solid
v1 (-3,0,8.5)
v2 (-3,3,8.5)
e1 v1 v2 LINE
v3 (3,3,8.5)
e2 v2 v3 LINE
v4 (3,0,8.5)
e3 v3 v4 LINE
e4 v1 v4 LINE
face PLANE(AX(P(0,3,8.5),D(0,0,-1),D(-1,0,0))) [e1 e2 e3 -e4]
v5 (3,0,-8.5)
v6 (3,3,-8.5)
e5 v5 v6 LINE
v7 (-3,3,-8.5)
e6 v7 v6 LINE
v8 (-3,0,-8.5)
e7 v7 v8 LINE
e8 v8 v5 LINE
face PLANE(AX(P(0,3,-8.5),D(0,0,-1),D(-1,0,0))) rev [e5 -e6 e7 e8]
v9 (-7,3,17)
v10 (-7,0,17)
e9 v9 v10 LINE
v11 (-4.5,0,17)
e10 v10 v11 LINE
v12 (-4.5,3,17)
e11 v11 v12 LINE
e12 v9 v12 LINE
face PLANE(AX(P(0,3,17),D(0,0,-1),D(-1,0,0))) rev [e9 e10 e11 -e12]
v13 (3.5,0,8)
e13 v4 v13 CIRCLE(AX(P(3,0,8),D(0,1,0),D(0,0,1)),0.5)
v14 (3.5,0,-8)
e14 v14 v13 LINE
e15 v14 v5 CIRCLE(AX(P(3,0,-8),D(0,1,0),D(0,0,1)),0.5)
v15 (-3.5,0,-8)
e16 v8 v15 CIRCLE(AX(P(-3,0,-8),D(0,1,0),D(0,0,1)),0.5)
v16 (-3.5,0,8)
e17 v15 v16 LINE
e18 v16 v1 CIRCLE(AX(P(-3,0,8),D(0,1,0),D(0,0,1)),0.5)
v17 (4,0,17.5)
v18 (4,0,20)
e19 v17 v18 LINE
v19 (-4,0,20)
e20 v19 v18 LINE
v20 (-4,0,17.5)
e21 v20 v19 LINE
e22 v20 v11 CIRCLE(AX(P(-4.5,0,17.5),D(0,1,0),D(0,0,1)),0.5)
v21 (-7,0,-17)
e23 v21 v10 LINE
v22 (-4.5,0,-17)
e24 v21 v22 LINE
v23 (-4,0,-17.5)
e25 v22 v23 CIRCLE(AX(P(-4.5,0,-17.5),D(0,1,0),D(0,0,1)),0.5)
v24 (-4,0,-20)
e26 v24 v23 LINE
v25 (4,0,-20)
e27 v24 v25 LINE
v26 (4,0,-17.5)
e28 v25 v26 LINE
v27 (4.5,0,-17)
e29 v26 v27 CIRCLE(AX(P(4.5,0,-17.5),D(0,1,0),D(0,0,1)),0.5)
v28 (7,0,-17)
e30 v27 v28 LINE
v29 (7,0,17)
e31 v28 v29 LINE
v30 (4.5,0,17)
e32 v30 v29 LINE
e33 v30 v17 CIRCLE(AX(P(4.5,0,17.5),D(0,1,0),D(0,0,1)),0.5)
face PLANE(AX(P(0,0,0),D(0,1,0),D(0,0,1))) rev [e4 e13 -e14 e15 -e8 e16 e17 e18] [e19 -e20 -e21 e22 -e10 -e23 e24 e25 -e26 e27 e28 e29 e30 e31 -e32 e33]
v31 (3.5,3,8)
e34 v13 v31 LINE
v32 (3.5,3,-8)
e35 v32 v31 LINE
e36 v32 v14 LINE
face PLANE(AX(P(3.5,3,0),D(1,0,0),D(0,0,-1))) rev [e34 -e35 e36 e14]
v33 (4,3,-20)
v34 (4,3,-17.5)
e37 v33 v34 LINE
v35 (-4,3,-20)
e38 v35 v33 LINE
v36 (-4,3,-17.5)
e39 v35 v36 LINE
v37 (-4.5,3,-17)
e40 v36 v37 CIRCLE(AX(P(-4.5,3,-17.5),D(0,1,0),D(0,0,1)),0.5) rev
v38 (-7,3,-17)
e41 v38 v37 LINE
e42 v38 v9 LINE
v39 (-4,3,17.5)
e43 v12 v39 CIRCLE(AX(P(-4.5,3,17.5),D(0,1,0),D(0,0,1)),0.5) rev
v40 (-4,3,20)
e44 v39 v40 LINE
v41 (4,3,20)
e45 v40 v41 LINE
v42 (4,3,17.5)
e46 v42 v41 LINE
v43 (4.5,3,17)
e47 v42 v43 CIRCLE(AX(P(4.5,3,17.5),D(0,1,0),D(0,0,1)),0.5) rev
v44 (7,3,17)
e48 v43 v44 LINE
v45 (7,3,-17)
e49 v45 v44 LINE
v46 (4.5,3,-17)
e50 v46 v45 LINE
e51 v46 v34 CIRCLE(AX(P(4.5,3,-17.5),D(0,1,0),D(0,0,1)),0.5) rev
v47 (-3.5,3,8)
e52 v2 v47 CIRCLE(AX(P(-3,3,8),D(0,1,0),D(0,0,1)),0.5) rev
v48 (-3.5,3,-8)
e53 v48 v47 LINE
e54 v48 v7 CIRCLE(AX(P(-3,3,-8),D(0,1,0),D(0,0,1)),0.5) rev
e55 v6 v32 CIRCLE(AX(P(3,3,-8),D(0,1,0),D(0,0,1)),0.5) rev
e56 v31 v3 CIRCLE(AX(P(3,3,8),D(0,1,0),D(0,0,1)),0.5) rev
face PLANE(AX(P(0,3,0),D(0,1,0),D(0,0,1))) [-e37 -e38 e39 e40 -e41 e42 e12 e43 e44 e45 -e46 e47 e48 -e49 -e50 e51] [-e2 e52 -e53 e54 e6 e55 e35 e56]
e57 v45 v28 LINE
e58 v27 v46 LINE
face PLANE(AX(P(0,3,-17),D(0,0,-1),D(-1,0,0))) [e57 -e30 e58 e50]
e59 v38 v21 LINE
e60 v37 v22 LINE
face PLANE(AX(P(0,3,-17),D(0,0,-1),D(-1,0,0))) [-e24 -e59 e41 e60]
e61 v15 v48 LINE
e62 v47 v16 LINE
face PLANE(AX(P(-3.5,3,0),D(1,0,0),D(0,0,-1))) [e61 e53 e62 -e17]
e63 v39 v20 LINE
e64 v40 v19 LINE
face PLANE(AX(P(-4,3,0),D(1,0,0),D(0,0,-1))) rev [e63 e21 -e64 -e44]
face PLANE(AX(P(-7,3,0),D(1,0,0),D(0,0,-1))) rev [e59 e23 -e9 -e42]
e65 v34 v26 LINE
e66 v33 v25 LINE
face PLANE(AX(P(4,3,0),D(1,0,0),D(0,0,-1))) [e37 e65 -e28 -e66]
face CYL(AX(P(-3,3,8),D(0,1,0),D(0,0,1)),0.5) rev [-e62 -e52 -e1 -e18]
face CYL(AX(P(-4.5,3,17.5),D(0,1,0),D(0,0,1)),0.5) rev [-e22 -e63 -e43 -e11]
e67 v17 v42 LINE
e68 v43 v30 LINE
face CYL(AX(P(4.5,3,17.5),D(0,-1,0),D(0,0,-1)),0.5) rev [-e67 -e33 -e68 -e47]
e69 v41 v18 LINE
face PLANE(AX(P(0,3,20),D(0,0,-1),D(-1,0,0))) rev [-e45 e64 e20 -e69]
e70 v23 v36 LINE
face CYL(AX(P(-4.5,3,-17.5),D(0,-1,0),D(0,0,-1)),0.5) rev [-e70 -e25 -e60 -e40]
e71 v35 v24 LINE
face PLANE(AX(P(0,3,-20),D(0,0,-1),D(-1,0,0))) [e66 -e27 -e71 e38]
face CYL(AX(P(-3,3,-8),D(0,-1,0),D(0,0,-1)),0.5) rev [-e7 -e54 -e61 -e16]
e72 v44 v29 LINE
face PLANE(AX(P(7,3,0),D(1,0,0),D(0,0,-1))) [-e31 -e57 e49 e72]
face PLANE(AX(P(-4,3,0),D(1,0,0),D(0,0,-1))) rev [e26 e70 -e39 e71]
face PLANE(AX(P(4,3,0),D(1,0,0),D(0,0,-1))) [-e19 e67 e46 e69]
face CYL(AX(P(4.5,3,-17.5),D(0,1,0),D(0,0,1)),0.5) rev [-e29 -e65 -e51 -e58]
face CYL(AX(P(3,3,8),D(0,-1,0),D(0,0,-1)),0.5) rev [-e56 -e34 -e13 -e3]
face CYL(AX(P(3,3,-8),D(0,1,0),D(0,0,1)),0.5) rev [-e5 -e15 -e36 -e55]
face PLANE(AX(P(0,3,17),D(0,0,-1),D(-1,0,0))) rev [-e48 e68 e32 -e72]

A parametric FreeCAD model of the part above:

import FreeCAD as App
import Part
import Sketcher

V = App.Vector


def edges_at(feature, points):
    """Names of the edges that pass closest to the given points."""
    edges = feature.Shape.Edges
    near = lambda p: min(range(len(edges)), key=lambda i: edges[i].distToShape(Part.Vertex(*p))[0])
    return sorted({f"Edge{near(p) + 1}" for p in points})

doc = App.newDocument("Part")
body = doc.addObject("PartDesign::Body", "Body")

# Sketch on XZ plane
sketch1 = body.newObject("Sketcher::SketchObject", "Sketch")
sketch1.AttachmentSupport = (doc.getObject("XZ_Plane"), [""])
sketch1.MapMode = "FlatFace"
sketch1.addGeometry(Part.LineSegment(V(-4, -17, 0), V(-7, -17, 0)), False)
sketch1.addGeometry(Part.LineSegment(V(-7, -17, 0), V(-7, 17, 0)), False)
sketch1.addGeometry(Part.LineSegment(V(-7, 17, 0), V(-4, 17, 0)), False)
sketch1.addGeometry(Part.LineSegment(V(-4, 17, 0), V(-4, 20, 0)), False)
sketch1.addGeometry(Part.LineSegment(V(-4, 20, 0), V(4, 20, 0)), False)
sketch1.addGeometry(Part.LineSegment(V(4, 20, 0), V(4, 17, 0)), False)
sketch1.addGeometry(Part.LineSegment(V(4, 17, 0), V(7, 17, 0)), False)
sketch1.addGeometry(Part.LineSegment(V(7, 17, 0), V(7, -17, 0)), False)
sketch1.addGeometry(Part.LineSegment(V(7, -17, 0), V(4, -17, 0)), False)
sketch1.addGeometry(Part.LineSegment(V(4, -17, 0), V(4, -20, 0)), False)
sketch1.addGeometry(Part.LineSegment(V(4, -20, 0), V(-4, -20, 0)), False)
sketch1.addGeometry(Part.LineSegment(V(-4, -20, 0), V(-4, -17, 0)), False)
sketch1.addGeometry(Part.LineSegment(V(3.5, 8.5, 0), V(-3.5, 8.5, 0)), False)
sketch1.addGeometry(Part.LineSegment(V(-3.5, 8.5, 0), V(-3.5, -8.5, 0)), False)
sketch1.addGeometry(Part.LineSegment(V(-3.5, -8.5, 0), V(3.5, -8.5, 0)), False)
sketch1.addGeometry(Part.LineSegment(V(3.5, -8.5, 0), V(3.5, 8.5, 0)), False)
sketch1.addConstraint(Sketcher.Constraint("Coincident", 0, 2, 1, 1))
sketch1.addConstraint(Sketcher.Constraint("Coincident", 1, 2, 2, 1))
sketch1.addConstraint(Sketcher.Constraint("Coincident", 2, 2, 3, 1))
sketch1.addConstraint(Sketcher.Constraint("Coincident", 3, 2, 4, 1))
sketch1.addConstraint(Sketcher.Constraint("Coincident", 4, 2, 5, 1))
sketch1.addConstraint(Sketcher.Constraint("Coincident", 5, 2, 6, 1))
sketch1.addConstraint(Sketcher.Constraint("Coincident", 6, 2, 7, 1))
sketch1.addConstraint(Sketcher.Constraint("Coincident", 7, 2, 8, 1))
sketch1.addConstraint(Sketcher.Constraint("Coincident", 8, 2, 9, 1))
sketch1.addConstraint(Sketcher.Constraint("Coincident", 9, 2, 10, 1))
sketch1.addConstraint(Sketcher.Constraint("Coincident", 10, 2, 11, 1))
sketch1.addConstraint(Sketcher.Constraint("Coincident", 11, 2, 0, 1))
sketch1.addConstraint(Sketcher.Constraint("Coincident", 12, 2, 13, 1))
sketch1.addConstraint(Sketcher.Constraint("Coincident", 13, 2, 14, 1))
sketch1.addConstraint(Sketcher.Constraint("Coincident", 14, 2, 15, 1))
sketch1.addConstraint(Sketcher.Constraint("Coincident", 15, 2, 12, 1))
sketch1.addConstraint(Sketcher.Constraint("Horizontal", 0))
sketch1.addConstraint(Sketcher.Constraint("Vertical", 1))
sketch1.addConstraint(Sketcher.Constraint("Horizontal", 2))
sketch1.addConstraint(Sketcher.Constraint("Vertical", 3))
sketch1.addConstraint(Sketcher.Constraint("Horizontal", 4))
sketch1.addConstraint(Sketcher.Constraint("Vertical", 5))
sketch1.addConstraint(Sketcher.Constraint("Horizontal", 6))
sketch1.addConstraint(Sketcher.Constraint("Vertical", 7))
sketch1.addConstraint(Sketcher.Constraint("Horizontal", 8))
sketch1.addConstraint(Sketcher.Constraint("Vertical", 9))
sketch1.addConstraint(Sketcher.Constraint("Horizontal", 10))
sketch1.addConstraint(Sketcher.Constraint("Vertical", 11))
sketch1.addConstraint(Sketcher.Constraint("Horizontal", 12))
sketch1.addConstraint(Sketcher.Constraint("Vertical", 13))
sketch1.addConstraint(Sketcher.Constraint("Horizontal", 14))
sketch1.addConstraint(Sketcher.Constraint("Vertical", 15))
sketch1.addConstraint(Sketcher.Constraint("Symmetric", 0, 2, 6, 2, -1, 1))
sketch1.addConstraint(Sketcher.Constraint("Symmetric", 2, 2, 8, 2, -1, 1))
sketch1.addConstraint(Sketcher.Constraint("Symmetric", 4, 2, 10, 2, -1, 1))
sketch1.addConstraint(Sketcher.Constraint("Symmetric", 12, 2, 14, 2, -1, 1))
sketch1.addConstraint(Sketcher.Constraint("Symmetric", 2, 2, 5, 2, -2))
sketch1.addConstraint(Sketcher.Constraint("Equal", 8, 3))
sketch1.addConstraint(Sketcher.Constraint("DistanceX", 0, 2, 0, 1, 3.0))
sketch1.addConstraint(Sketcher.Constraint("DistanceX", 4, 1, 4, 2, 8.0))
sketch1.addConstraint(Sketcher.Constraint("DistanceX", 12, 2, 12, 1, 7.0))
sketch1.addConstraint(Sketcher.Constraint("DistanceY", 1, 1, 1, 2, 34.0))
sketch1.addConstraint(Sketcher.Constraint("DistanceY", 13, 2, 13, 1, 17.0))
pad1 = body.newObject("PartDesign::Pad", "Pad")
pad1.Profile = sketch1
pad1.Length = 3
pad1.Reversed = True
doc.recompute()

fillet = body.newObject("PartDesign::Fillet", "Fillet")
fillet.Base = (pad1, edges_at(pad1, [
    (-3.5, 1.5, -8.5),
    (-3.5, 1.5, 8.5),
    (3.5, 1.5, 8.5),
    (3.5, 1.5, -8.5),
    (-4, 1.5, -17),
    (4, 1.5, -17),
    (4, 1.5, 17),
    (-4, 1.5, 17),
]))
fillet.Radius = 0.5

doc.recompute()
